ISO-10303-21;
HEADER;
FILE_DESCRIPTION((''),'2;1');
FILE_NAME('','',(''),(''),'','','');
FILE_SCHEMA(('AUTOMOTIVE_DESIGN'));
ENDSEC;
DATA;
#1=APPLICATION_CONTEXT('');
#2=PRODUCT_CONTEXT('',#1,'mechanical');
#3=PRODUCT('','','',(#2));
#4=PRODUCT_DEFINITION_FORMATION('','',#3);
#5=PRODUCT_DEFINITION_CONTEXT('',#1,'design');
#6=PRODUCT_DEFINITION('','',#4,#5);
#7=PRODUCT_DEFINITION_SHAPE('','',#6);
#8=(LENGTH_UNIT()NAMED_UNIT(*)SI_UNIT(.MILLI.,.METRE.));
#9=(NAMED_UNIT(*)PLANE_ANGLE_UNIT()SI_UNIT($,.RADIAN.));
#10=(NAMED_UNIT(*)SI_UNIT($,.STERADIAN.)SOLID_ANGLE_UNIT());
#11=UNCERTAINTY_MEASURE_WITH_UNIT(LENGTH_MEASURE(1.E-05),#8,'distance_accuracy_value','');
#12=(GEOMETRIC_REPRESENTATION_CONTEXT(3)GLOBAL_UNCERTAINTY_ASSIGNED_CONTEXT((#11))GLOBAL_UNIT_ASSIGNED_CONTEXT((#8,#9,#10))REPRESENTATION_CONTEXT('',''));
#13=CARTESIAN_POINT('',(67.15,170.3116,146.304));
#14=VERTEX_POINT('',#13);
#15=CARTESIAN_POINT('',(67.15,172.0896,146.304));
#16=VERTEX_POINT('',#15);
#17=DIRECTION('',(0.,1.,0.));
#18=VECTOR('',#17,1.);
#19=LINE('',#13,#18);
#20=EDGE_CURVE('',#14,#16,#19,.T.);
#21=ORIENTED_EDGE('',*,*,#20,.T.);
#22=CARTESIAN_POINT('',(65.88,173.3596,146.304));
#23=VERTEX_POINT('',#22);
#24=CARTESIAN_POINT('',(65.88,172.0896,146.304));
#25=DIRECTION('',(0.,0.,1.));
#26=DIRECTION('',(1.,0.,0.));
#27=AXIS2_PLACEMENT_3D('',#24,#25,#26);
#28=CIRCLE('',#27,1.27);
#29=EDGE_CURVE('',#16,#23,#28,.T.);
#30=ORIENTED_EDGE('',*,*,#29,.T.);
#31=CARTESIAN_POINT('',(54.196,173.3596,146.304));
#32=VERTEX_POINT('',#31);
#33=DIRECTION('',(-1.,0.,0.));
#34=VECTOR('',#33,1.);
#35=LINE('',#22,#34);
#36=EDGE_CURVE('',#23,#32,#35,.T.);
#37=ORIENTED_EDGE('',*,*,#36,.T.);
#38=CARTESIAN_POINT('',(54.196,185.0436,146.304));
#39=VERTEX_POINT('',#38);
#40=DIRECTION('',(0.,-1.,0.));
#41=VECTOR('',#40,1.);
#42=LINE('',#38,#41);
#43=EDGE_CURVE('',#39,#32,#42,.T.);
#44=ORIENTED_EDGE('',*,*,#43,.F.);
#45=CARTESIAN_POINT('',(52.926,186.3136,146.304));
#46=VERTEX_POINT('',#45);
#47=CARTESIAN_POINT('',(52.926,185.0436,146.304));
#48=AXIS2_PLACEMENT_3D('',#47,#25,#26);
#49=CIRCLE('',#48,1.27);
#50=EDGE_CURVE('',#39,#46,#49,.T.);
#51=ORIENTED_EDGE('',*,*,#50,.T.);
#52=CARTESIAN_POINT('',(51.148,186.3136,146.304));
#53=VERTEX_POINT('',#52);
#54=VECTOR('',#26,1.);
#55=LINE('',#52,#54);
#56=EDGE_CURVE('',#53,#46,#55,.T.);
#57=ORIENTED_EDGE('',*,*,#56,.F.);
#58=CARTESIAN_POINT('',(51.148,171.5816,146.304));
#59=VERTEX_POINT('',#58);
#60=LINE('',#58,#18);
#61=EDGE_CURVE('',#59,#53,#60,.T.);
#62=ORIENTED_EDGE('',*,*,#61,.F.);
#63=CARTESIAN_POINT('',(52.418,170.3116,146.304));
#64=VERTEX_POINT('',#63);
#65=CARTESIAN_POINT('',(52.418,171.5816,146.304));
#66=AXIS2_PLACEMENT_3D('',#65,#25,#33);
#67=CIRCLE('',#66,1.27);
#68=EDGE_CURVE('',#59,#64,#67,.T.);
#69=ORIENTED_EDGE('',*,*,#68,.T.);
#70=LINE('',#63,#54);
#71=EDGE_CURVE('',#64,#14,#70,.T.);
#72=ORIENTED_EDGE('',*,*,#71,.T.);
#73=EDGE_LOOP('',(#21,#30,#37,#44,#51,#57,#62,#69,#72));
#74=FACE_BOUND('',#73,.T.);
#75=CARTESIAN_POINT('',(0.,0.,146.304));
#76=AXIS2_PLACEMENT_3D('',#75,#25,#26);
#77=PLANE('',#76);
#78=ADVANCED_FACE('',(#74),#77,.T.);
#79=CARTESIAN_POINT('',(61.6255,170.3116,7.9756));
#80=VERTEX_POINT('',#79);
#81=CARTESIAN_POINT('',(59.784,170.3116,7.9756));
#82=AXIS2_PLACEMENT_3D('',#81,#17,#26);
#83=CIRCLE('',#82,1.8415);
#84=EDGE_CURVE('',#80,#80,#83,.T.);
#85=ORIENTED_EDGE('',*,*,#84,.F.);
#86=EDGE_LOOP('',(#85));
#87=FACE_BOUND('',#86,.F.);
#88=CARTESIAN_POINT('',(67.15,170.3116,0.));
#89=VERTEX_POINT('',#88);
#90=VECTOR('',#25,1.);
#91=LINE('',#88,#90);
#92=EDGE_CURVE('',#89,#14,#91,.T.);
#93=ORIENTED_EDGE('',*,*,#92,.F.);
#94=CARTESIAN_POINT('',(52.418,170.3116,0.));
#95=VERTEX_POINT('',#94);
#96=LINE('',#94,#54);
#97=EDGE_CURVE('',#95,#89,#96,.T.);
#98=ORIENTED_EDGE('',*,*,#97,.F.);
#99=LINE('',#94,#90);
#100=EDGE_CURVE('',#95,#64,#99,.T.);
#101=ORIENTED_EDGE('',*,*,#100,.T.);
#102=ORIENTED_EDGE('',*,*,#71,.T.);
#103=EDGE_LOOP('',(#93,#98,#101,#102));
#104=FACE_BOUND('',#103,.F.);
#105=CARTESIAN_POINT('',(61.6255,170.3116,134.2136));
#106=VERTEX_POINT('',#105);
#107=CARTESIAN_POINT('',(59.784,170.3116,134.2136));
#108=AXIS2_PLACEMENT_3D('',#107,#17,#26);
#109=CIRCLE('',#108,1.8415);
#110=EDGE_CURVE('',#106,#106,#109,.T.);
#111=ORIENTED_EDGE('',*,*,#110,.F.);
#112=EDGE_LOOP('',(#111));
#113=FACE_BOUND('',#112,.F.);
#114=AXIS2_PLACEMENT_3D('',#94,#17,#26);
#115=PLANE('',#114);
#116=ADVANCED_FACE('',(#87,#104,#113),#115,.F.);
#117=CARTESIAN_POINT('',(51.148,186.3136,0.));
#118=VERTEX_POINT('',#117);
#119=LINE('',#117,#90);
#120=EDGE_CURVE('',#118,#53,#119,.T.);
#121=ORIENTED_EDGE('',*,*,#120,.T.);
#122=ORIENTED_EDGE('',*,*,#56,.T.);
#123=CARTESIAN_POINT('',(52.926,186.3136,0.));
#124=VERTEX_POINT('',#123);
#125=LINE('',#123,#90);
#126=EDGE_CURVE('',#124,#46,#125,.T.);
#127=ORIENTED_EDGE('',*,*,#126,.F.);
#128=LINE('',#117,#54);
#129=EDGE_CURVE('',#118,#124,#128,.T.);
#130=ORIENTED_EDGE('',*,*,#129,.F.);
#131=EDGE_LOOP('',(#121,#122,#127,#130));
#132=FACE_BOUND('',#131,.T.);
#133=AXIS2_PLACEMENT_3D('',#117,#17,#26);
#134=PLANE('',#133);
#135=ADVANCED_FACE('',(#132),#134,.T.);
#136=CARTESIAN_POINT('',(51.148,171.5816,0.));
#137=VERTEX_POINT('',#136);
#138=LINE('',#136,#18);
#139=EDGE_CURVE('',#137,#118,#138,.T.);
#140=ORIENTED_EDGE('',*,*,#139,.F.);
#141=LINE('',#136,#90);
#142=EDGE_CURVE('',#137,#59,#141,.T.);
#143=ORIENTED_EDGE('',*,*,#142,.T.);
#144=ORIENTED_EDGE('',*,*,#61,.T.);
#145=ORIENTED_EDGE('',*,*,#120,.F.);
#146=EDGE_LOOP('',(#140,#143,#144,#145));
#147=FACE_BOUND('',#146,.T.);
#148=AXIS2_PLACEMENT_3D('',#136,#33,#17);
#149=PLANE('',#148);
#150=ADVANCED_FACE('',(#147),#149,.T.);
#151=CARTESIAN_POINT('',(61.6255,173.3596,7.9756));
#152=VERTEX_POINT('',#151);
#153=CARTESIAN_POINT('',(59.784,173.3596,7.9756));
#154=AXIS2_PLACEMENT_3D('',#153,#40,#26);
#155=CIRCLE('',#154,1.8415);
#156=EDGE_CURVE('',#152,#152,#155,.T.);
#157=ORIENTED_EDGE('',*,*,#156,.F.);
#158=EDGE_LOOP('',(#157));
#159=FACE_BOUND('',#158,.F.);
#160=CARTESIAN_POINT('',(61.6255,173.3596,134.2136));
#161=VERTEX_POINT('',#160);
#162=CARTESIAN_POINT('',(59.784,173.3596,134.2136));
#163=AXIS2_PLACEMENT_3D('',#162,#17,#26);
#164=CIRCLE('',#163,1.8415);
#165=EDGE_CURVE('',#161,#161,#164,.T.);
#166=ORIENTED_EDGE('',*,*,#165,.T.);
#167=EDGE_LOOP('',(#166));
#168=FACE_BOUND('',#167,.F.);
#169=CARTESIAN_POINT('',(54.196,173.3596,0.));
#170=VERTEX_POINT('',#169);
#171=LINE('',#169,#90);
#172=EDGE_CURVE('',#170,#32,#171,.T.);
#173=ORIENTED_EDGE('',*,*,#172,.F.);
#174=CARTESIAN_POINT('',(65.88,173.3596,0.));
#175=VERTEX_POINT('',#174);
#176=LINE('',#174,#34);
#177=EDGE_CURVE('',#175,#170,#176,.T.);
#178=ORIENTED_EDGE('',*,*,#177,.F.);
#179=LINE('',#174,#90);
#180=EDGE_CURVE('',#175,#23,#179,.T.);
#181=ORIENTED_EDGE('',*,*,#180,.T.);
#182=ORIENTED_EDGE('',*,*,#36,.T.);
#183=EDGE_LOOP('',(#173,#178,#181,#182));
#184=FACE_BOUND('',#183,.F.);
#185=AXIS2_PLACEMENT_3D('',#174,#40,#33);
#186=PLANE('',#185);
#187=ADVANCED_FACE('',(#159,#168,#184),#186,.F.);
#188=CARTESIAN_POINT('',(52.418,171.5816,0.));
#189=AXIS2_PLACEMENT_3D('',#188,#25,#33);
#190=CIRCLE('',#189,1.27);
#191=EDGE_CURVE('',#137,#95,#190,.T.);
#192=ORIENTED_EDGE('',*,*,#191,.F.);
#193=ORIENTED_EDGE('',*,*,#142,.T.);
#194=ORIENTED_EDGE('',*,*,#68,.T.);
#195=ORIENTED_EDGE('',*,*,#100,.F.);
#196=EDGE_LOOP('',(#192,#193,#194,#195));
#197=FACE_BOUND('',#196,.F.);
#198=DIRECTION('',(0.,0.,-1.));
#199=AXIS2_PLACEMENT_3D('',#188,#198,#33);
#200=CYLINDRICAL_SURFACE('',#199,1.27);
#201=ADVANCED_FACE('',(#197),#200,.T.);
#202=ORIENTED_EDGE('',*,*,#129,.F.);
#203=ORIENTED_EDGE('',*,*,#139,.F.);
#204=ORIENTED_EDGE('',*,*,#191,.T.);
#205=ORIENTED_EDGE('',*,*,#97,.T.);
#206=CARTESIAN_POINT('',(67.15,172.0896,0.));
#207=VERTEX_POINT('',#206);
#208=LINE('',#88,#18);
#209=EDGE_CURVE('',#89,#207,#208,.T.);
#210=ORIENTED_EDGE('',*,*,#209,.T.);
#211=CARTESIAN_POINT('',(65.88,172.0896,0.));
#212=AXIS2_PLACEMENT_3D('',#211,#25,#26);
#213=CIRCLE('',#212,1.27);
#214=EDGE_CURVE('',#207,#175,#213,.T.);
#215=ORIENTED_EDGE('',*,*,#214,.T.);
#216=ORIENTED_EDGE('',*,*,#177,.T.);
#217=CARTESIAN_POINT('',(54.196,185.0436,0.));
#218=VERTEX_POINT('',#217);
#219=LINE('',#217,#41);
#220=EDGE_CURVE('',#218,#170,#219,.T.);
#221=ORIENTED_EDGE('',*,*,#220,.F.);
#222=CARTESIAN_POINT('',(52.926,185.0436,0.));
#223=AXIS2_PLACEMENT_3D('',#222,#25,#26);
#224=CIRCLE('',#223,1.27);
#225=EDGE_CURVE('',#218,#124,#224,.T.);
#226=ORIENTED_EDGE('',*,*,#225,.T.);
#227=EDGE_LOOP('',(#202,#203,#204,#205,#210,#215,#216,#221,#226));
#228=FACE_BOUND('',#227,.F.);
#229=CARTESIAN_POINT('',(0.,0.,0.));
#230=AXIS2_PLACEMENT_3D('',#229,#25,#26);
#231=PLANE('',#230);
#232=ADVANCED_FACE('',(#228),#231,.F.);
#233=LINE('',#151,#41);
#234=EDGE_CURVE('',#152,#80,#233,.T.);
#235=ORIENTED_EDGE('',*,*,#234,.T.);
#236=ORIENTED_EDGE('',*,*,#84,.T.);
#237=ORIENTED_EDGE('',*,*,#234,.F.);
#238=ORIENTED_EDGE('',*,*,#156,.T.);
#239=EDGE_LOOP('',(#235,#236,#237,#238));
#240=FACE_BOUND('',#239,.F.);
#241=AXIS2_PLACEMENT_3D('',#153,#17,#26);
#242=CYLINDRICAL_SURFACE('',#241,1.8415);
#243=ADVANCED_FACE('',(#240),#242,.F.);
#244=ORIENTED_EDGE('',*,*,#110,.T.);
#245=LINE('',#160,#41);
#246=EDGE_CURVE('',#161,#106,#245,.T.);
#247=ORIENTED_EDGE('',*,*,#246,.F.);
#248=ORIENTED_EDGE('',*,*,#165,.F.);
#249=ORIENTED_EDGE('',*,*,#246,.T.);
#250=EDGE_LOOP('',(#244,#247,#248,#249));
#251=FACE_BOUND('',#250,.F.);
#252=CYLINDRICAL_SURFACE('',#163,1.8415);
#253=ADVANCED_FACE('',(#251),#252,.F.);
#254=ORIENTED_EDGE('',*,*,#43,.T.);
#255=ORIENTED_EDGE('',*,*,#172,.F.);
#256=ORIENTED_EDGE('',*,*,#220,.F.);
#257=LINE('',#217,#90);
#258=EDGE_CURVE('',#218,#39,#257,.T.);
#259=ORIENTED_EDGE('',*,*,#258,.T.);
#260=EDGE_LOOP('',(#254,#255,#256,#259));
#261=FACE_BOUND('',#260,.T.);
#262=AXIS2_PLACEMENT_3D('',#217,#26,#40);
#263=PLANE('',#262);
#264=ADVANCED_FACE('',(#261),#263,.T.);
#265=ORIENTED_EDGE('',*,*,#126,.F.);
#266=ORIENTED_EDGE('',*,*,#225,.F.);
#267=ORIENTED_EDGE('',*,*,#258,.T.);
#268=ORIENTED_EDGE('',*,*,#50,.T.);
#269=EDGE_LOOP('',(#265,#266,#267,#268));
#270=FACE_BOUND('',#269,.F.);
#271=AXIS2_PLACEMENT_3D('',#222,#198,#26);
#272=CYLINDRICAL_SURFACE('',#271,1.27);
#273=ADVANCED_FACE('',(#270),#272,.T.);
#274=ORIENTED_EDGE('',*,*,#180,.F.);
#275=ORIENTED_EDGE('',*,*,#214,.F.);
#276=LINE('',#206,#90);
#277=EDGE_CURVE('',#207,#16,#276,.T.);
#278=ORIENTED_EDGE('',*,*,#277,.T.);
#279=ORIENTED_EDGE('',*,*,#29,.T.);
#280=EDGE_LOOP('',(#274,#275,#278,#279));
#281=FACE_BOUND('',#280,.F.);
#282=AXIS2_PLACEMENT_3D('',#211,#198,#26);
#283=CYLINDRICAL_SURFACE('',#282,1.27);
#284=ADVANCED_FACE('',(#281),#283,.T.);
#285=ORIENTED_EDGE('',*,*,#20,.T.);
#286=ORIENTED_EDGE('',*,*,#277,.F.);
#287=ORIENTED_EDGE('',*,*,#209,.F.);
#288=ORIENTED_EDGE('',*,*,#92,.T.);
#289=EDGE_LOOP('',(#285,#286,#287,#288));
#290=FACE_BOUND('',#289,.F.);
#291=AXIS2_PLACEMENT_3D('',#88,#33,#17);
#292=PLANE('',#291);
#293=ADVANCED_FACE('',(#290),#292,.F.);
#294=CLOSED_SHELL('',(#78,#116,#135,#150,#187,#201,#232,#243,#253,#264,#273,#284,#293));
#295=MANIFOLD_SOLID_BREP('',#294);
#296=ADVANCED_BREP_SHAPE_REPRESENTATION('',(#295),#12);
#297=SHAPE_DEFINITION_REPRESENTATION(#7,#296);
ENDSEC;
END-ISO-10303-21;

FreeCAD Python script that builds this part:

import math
import FreeCAD as App
import Part
import Sketcher
from FreeCAD import Vector
Q = App.Units.Quantity

doc = App.newDocument("Part")
body = doc.addObject("PartDesign::Body", "Body")

# Sketch on XY plane
sketch1 = body.newObject("Sketcher::SketchObject", "Sketch")
sketch1.AttachmentSupport = (doc.getObject("XY_Plane"), [""])
sketch1.MapMode = "FlatFace"
sketch1.addGeometry([
    Part.ArcOfCircle(Part.Circle(Vector(52.4, 171.6, 0), Vector(0, 0, 1), 1.3), math.radians(180), math.radians(270)),  # 0
    Part.LineSegment(Vector(52.4, 170.3, 0), Vector(67.2, 170.3, 0)),  # 1
    Part.LineSegment(Vector(67.2, 170.3, 0), Vector(67.2, 172.1, 0)),  # 2
    Part.ArcOfCircle(Part.Circle(Vector(65.9, 172.1, 0), Vector(0, 0, 1), 1.3), math.radians(0), math.radians(90)),  # 3
    Part.LineSegment(Vector(65.9, 173.4, 0), Vector(54.2, 173.4, 0)),  # 4
    Part.LineSegment(Vector(54.2, 173.4, 0), Vector(54.2, 185, 0)),  # 5
    Part.ArcOfCircle(Part.Circle(Vector(52.9, 185, 0), Vector(0, 0, 1), 1.3), math.radians(0), math.radians(90)),  # 6
    Part.LineSegment(Vector(52.9, 186.3, 0), Vector(51.1, 186.3, 0)),  # 7
    Part.LineSegment(Vector(51.1, 186.3, 0), Vector(51.1, 171.6, 0)),  # 8
], False)
sketch1.addConstraint([
    Sketcher.Constraint("Tangent", 0, 2, 1, 1),
    Sketcher.Constraint("Coincident", 1, 2, 2, 1),
    Sketcher.Constraint("Tangent", 2, 2, 3, 1),
    Sketcher.Constraint("Tangent", 3, 2, 4, 1),
    Sketcher.Constraint("Coincident", 4, 2, 5, 1),
    Sketcher.Constraint("Tangent", 5, 2, 6, 1),
    Sketcher.Constraint("Tangent", 6, 2, 7, 1),
    Sketcher.Constraint("Coincident", 7, 2, 8, 1),
    Sketcher.Constraint("Tangent", 8, 2, 0, 1),
    Sketcher.Constraint("Horizontal", 1),
    Sketcher.Constraint("Vertical", 2),
    Sketcher.Constraint("Horizontal", 4),
    Sketcher.Constraint("Vertical", 5),
    Sketcher.Constraint("Horizontal", 7),
    Sketcher.Constraint("Vertical", 8),
    Sketcher.Constraint("Equal", 0, 3),
    Sketcher.Constraint("Equal", 3, 6),
    Sketcher.Constraint("Equal", 7, 2),
    Sketcher.Constraint("Equal", 4, 5),
    Sketcher.Constraint("Radius", 0, Q("0.05 in")),
    Sketcher.Constraint("DistanceY", 1, 2, 3, 2, Q("0.12 in")),
    Sketcher.Constraint("DistanceY", 0, 2, 6, 2, Q("0.63 in")),
    Sketcher.Constraint("DistanceX", -1, 1, 0, 3, Q("2.0637 in")),
    Sketcher.Constraint("DistanceY", -1, 1, 0, 3, 171.5816),
])
pad1 = body.newObject("PartDesign::Pad", "Pad")
pad1.Profile = sketch1
pad1.Length = Q("5.76 in")

# Sketch on XZ plane
sketch2 = body.newObject("Sketcher::SketchObject", "Sketch001")
sketch2.AttachmentSupport = (doc.getObject("XZ_Plane"), [""])
sketch2.MapMode = "FlatFace"
sketch2.AttachmentOffset = App.Placement(Vector(0, 0, -173.3596), App.Rotation())
sketch2.addGeometry([
    Part.Circle(Vector(59.8, 8, 0), Vector(0, 0, 1), 1.8),
    Part.Circle(Vector(59.8, 134.2, 0), Vector(0, 0, 1), 1.8),
], False)
sketch2.addConstraint([
    Sketcher.Constraint("Equal", 0, 1),
    Sketcher.Constraint("Vertical", 0, 3, 1, 3),
    Sketcher.Constraint("Diameter", 0, Q("0.145 in")),
    Sketcher.Constraint("DistanceY", 0, 3, 1, 3, Q("4.97 in")),
    Sketcher.Constraint("DistanceY", -1, 1, 0, 3, Q("0.314 in")),
    Sketcher.Constraint("DistanceX", -1, 1, 0, 3, Q("2.3537 in")),
])
pocket1 = body.newObject("PartDesign::Pocket", "Pocket")
pocket1.Profile = sketch2
pocket1.Length = Q("2.75 in")
pocket1.Reversed = True

doc.recompute()
